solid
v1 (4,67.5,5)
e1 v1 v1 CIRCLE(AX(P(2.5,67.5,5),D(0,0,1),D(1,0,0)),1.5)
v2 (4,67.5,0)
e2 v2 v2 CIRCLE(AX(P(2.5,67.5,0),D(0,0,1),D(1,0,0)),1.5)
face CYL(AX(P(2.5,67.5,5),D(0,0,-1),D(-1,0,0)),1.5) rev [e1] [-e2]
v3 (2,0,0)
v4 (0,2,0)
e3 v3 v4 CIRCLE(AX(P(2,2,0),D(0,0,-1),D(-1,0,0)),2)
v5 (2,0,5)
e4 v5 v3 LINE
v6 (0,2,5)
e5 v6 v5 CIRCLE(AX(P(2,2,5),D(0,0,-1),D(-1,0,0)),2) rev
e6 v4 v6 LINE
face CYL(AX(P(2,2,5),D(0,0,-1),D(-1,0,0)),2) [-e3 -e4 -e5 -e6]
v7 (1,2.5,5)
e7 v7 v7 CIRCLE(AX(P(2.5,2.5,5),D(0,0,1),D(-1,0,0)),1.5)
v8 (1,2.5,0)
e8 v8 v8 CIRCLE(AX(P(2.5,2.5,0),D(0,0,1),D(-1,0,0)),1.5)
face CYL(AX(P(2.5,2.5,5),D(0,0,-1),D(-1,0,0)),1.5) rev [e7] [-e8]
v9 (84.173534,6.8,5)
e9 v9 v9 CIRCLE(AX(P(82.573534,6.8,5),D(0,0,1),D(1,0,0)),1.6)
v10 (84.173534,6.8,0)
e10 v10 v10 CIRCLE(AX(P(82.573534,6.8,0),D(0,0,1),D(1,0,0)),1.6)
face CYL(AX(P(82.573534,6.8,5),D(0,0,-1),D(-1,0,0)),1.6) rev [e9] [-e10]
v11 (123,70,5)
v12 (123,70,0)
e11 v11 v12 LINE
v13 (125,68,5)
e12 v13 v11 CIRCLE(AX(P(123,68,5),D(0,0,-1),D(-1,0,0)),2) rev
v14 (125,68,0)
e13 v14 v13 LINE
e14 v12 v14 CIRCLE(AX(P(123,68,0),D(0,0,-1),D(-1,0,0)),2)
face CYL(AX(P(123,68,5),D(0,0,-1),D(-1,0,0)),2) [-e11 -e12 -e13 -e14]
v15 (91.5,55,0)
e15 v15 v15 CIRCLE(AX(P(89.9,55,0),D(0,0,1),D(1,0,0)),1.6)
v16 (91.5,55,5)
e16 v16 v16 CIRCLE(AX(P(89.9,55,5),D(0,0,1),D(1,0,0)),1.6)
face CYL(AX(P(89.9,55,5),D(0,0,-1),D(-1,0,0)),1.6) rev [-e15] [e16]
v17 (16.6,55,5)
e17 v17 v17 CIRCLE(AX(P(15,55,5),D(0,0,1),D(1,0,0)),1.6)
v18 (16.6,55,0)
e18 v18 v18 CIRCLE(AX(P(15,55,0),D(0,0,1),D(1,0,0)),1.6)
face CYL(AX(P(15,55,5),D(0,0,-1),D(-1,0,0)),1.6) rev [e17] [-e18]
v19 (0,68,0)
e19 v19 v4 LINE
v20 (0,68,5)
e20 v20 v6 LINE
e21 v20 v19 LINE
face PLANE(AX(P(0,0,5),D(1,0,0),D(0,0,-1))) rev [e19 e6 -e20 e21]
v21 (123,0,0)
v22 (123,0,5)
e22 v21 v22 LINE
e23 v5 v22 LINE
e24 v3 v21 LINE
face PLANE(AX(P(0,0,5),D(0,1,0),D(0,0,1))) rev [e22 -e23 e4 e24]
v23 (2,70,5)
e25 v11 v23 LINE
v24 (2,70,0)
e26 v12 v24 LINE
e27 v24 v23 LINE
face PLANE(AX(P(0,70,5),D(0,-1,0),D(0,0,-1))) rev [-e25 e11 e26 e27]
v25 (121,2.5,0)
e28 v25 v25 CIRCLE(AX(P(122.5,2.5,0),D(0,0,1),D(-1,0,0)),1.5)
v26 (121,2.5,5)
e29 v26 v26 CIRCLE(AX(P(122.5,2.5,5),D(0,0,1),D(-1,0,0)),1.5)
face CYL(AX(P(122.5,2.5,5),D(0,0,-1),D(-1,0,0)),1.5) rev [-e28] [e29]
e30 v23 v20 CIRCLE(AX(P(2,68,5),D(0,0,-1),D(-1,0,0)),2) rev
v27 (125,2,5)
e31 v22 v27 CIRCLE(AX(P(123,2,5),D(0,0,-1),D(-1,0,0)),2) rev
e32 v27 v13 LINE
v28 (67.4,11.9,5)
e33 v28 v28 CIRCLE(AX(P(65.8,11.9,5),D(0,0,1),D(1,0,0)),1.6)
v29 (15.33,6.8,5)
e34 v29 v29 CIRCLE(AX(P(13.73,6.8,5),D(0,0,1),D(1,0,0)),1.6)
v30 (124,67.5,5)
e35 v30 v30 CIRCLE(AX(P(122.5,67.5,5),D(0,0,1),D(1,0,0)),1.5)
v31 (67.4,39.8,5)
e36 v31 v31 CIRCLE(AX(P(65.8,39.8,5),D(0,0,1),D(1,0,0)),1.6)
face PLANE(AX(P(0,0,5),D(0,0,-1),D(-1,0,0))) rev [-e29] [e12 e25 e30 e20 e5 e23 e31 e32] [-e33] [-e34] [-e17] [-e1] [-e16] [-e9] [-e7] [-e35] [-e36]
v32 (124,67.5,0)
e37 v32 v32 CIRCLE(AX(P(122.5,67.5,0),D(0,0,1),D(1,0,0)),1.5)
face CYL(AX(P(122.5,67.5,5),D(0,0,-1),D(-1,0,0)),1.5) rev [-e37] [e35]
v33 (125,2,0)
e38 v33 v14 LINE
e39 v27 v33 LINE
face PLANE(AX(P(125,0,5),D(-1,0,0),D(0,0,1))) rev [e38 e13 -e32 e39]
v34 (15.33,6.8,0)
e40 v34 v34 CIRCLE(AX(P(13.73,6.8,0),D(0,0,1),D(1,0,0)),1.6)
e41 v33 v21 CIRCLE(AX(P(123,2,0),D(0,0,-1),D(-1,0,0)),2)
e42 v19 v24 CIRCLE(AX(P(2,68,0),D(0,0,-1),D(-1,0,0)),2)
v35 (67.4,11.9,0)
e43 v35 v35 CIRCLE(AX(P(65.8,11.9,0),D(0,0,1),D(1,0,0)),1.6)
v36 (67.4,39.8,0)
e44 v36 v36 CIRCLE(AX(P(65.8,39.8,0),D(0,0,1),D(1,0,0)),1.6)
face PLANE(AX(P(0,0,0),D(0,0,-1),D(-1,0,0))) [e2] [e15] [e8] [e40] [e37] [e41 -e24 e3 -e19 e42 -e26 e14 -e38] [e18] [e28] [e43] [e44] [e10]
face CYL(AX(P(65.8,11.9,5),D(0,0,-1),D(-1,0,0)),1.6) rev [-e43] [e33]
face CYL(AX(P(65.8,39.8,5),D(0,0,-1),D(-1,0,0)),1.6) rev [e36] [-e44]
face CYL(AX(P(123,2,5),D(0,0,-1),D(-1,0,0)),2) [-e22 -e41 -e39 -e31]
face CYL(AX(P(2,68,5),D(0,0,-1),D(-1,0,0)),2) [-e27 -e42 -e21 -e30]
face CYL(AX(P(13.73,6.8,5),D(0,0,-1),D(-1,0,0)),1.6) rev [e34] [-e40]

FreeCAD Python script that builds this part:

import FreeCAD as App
import Part
import Sketcher
Q = App.Units.Quantity


def edges_at(feature, points):
    """Names of the edges that pass closest to the given points."""
    edges = feature.Shape.Edges
    near = lambda p: min(range(len(edges)), key=lambda i: edges[i].distToShape(Part.Vertex(*p))[0])
    return sorted({f"Edge{near(p) + 1}" for p in points})

doc = App.newDocument("Part")
body = doc.addObject("PartDesign::Body", "Body")

# Sketch on XY plane
sketch1 = body.newObject("Sketcher::SketchObject", "Sketch")
sketch1.AttachmentSupport = (doc.getObject("XY_Plane"), [""])
sketch1.MapMode = "FlatFace"
sketch1.addGeometry(Part.LineSegment(App.Vector(0, 70, 0), App.Vector(0, 0, 0)), False)
sketch1.addGeometry(Part.LineSegment(App.Vector(0, 0, 0), App.Vector(125, 0, 0)), False)
sketch1.addGeometry(Part.LineSegment(App.Vector(125, 0, 0), App.Vector(125, 70, 0)), False)
sketch1.addGeometry(Part.LineSegment(App.Vector(125, 70, 0), App.Vector(0, 70, 0)), False)
sketch1.addGeometry(Part.Circle(App.Vector(2.5, 2.5, 0), App.Vector(0, 0, 1), 1.5), False)
sketch1.addGeometry(Part.Circle(App.Vector(13.73, 6.8, 0), App.Vector(0, 0, 1), 1.6), False)
sketch1.addGeometry(Part.Circle(App.Vector(82.573534, 6.8, 0), App.Vector(0, 0, 1), 1.6), False)
sketch1.addGeometry(Part.Circle(App.Vector(65.8, 11.9, 0), App.Vector(0, 0, 1), 1.6), False)
sketch1.addGeometry(Part.Circle(App.Vector(122.5, 2.5, 0), App.Vector(0, 0, 1), 1.5), False)
sketch1.addGeometry(Part.Circle(App.Vector(15, 55, 0), App.Vector(0, 0, 1), 1.6), False)
sketch1.addGeometry(Part.Circle(App.Vector(2.5, 67.5, 0), App.Vector(0, 0, 1), 1.5), False)
sketch1.addGeometry(Part.Circle(App.Vector(65.8, 39.8, 0), App.Vector(0, 0, 1), 1.6), False)
sketch1.addGeometry(Part.Circle(App.Vector(89.9, 55, 0), App.Vector(0, 0, 1), 1.6), False)
sketch1.addGeometry(Part.Circle(App.Vector(122.5, 67.5, 0), App.Vector(0, 0, 1), 1.5), False)
sketch1.addConstraint(Sketcher.Constraint("Coincident", 0, 2, 1, 1))
sketch1.addConstraint(Sketcher.Constraint("Coincident", 1, 2, 2, 1))
sketch1.addConstraint(Sketcher.Constraint("Coincident", 2, 2, 3, 1))
sketch1.addConstraint(Sketcher.Constraint("Coincident", 3, 2, 0, 1))
sketch1.addConstraint(Sketcher.Constraint("Vertical", 0))
sketch1.addConstraint(Sketcher.Constraint("Horizontal", 1))
sketch1.addConstraint(Sketcher.Constraint("Vertical", 2))
sketch1.addConstraint(Sketcher.Constraint("Horizontal", 3))
sketch1.addConstraint(Sketcher.Constraint("Coincident", 0, 2, -1, 1))
sketch1.addConstraint(Sketcher.Constraint("Equal", 5, 6))
sketch1.addConstraint(Sketcher.Constraint("Equal", 6, 7))
sketch1.addConstraint(Sketcher.Constraint("Equal", 4, 8))
sketch1.addConstraint(Sketcher.Constraint("Equal", 7, 9))
sketch1.addConstraint(Sketcher.Constraint("Equal", 8, 10))
sketch1.addConstraint(Sketcher.Constraint("Equal", 9, 11))
sketch1.addConstraint(Sketcher.Constraint("Equal", 11, 12))
sketch1.addConstraint(Sketcher.Constraint("Equal", 10, 13))
sketch1.addConstraint(Sketcher.Constraint("Horizontal", 5, 3, 6, 3))
sketch1.addConstraint(Sketcher.Constraint("Horizontal", 4, 3, 8, 3))
sketch1.addConstraint(Sketcher.Constraint("Horizontal", 9, 3, 12, 3))
sketch1.addConstraint(Sketcher.Constraint("Horizontal", 10, 3, 13, 3))
sketch1.addConstraint(Sketcher.Constraint("Vertical", 4, 3, 10, 3))
sketch1.addConstraint(Sketcher.Constraint("Vertical", 7, 3, 11, 3))
sketch1.addConstraint(Sketcher.Constraint("Vertical", 8, 3, 13, 3))
sketch1.addConstraint(Sketcher.Constraint("Diameter", 4, Q("3 mm")))
sketch1.addConstraint(Sketcher.Constraint("Diameter", 5, Q("3.2 mm")))
sketch1.addConstraint(Sketcher.Constraint("DistanceX", 1, 1, 1, 2, Q("125 mm")))
sketch1.addConstraint(Sketcher.Constraint("DistanceY", 0, 2, 0, 1, Q("70 mm")))
sketch1.addConstraint(Sketcher.Constraint("DistanceX", -1, 1, 9, 3, Q("15 mm")))
sketch1.addConstraint(Sketcher.Constraint("DistanceY", -1, 1, 9, 3, Q("55 mm")))
sketch1.addConstraint(Sketcher.Constraint("DistanceX", 4, 3, 8, 3, Q("120 mm")))
sketch1.addConstraint(Sketcher.Constraint("DistanceY", 4, 3, 10, 3, Q("65 mm")))
sketch1.addConstraint(Sketcher.Constraint("DistanceY", 6, 3, 11, 3, Q("33 mm")))
sketch1.addConstraint(Sketcher.Constraint("DistanceX", -1, 1, 4, 3, Q("2.5 mm")))
sketch1.addConstraint(Sketcher.Constraint("DistanceY", -1, 1, 4, 3, Q("2.5 mm")))
sketch1.addConstraint(Sketcher.Constraint("DistanceY", -1, 1, 5, 3, Q("6.8 mm")))
sketch1.addConstraint(Sketcher.Constraint("DistanceX", -1, 1, 7, 3, Q("65.8 mm")))
sketch1.addConstraint(Sketcher.Constraint("DistanceY", -1, 1, 7, 3, Q("11.9 mm")))
sketch1.addConstraint(Sketcher.Constraint("DistanceX", -1, 1, 12, 3, Q("89.9 mm")))
sketch1.addConstraint(Sketcher.Constraint("DistanceX", -1, 1, 5, 3, Q("13.73 mm")))
sketch1.addConstraint(Sketcher.Constraint("DistanceX", -1, 1, 6, 3, Q("82.573534 mm")))
pad1 = body.newObject("PartDesign::Pad", "Pad")
pad1.Profile = sketch1
pad1.Length = 5
doc.recompute()

fillet = body.newObject("PartDesign::Fillet", "Fillet")
fillet.Base = (pad1, edges_at(pad1, [
    (0, 70, 2.5),
    (125, 70, 2.5),
    (125, 0, 2.5),
    (0, 0, 2.5),
]))
fillet.Radius = 2

doc.recompute()
